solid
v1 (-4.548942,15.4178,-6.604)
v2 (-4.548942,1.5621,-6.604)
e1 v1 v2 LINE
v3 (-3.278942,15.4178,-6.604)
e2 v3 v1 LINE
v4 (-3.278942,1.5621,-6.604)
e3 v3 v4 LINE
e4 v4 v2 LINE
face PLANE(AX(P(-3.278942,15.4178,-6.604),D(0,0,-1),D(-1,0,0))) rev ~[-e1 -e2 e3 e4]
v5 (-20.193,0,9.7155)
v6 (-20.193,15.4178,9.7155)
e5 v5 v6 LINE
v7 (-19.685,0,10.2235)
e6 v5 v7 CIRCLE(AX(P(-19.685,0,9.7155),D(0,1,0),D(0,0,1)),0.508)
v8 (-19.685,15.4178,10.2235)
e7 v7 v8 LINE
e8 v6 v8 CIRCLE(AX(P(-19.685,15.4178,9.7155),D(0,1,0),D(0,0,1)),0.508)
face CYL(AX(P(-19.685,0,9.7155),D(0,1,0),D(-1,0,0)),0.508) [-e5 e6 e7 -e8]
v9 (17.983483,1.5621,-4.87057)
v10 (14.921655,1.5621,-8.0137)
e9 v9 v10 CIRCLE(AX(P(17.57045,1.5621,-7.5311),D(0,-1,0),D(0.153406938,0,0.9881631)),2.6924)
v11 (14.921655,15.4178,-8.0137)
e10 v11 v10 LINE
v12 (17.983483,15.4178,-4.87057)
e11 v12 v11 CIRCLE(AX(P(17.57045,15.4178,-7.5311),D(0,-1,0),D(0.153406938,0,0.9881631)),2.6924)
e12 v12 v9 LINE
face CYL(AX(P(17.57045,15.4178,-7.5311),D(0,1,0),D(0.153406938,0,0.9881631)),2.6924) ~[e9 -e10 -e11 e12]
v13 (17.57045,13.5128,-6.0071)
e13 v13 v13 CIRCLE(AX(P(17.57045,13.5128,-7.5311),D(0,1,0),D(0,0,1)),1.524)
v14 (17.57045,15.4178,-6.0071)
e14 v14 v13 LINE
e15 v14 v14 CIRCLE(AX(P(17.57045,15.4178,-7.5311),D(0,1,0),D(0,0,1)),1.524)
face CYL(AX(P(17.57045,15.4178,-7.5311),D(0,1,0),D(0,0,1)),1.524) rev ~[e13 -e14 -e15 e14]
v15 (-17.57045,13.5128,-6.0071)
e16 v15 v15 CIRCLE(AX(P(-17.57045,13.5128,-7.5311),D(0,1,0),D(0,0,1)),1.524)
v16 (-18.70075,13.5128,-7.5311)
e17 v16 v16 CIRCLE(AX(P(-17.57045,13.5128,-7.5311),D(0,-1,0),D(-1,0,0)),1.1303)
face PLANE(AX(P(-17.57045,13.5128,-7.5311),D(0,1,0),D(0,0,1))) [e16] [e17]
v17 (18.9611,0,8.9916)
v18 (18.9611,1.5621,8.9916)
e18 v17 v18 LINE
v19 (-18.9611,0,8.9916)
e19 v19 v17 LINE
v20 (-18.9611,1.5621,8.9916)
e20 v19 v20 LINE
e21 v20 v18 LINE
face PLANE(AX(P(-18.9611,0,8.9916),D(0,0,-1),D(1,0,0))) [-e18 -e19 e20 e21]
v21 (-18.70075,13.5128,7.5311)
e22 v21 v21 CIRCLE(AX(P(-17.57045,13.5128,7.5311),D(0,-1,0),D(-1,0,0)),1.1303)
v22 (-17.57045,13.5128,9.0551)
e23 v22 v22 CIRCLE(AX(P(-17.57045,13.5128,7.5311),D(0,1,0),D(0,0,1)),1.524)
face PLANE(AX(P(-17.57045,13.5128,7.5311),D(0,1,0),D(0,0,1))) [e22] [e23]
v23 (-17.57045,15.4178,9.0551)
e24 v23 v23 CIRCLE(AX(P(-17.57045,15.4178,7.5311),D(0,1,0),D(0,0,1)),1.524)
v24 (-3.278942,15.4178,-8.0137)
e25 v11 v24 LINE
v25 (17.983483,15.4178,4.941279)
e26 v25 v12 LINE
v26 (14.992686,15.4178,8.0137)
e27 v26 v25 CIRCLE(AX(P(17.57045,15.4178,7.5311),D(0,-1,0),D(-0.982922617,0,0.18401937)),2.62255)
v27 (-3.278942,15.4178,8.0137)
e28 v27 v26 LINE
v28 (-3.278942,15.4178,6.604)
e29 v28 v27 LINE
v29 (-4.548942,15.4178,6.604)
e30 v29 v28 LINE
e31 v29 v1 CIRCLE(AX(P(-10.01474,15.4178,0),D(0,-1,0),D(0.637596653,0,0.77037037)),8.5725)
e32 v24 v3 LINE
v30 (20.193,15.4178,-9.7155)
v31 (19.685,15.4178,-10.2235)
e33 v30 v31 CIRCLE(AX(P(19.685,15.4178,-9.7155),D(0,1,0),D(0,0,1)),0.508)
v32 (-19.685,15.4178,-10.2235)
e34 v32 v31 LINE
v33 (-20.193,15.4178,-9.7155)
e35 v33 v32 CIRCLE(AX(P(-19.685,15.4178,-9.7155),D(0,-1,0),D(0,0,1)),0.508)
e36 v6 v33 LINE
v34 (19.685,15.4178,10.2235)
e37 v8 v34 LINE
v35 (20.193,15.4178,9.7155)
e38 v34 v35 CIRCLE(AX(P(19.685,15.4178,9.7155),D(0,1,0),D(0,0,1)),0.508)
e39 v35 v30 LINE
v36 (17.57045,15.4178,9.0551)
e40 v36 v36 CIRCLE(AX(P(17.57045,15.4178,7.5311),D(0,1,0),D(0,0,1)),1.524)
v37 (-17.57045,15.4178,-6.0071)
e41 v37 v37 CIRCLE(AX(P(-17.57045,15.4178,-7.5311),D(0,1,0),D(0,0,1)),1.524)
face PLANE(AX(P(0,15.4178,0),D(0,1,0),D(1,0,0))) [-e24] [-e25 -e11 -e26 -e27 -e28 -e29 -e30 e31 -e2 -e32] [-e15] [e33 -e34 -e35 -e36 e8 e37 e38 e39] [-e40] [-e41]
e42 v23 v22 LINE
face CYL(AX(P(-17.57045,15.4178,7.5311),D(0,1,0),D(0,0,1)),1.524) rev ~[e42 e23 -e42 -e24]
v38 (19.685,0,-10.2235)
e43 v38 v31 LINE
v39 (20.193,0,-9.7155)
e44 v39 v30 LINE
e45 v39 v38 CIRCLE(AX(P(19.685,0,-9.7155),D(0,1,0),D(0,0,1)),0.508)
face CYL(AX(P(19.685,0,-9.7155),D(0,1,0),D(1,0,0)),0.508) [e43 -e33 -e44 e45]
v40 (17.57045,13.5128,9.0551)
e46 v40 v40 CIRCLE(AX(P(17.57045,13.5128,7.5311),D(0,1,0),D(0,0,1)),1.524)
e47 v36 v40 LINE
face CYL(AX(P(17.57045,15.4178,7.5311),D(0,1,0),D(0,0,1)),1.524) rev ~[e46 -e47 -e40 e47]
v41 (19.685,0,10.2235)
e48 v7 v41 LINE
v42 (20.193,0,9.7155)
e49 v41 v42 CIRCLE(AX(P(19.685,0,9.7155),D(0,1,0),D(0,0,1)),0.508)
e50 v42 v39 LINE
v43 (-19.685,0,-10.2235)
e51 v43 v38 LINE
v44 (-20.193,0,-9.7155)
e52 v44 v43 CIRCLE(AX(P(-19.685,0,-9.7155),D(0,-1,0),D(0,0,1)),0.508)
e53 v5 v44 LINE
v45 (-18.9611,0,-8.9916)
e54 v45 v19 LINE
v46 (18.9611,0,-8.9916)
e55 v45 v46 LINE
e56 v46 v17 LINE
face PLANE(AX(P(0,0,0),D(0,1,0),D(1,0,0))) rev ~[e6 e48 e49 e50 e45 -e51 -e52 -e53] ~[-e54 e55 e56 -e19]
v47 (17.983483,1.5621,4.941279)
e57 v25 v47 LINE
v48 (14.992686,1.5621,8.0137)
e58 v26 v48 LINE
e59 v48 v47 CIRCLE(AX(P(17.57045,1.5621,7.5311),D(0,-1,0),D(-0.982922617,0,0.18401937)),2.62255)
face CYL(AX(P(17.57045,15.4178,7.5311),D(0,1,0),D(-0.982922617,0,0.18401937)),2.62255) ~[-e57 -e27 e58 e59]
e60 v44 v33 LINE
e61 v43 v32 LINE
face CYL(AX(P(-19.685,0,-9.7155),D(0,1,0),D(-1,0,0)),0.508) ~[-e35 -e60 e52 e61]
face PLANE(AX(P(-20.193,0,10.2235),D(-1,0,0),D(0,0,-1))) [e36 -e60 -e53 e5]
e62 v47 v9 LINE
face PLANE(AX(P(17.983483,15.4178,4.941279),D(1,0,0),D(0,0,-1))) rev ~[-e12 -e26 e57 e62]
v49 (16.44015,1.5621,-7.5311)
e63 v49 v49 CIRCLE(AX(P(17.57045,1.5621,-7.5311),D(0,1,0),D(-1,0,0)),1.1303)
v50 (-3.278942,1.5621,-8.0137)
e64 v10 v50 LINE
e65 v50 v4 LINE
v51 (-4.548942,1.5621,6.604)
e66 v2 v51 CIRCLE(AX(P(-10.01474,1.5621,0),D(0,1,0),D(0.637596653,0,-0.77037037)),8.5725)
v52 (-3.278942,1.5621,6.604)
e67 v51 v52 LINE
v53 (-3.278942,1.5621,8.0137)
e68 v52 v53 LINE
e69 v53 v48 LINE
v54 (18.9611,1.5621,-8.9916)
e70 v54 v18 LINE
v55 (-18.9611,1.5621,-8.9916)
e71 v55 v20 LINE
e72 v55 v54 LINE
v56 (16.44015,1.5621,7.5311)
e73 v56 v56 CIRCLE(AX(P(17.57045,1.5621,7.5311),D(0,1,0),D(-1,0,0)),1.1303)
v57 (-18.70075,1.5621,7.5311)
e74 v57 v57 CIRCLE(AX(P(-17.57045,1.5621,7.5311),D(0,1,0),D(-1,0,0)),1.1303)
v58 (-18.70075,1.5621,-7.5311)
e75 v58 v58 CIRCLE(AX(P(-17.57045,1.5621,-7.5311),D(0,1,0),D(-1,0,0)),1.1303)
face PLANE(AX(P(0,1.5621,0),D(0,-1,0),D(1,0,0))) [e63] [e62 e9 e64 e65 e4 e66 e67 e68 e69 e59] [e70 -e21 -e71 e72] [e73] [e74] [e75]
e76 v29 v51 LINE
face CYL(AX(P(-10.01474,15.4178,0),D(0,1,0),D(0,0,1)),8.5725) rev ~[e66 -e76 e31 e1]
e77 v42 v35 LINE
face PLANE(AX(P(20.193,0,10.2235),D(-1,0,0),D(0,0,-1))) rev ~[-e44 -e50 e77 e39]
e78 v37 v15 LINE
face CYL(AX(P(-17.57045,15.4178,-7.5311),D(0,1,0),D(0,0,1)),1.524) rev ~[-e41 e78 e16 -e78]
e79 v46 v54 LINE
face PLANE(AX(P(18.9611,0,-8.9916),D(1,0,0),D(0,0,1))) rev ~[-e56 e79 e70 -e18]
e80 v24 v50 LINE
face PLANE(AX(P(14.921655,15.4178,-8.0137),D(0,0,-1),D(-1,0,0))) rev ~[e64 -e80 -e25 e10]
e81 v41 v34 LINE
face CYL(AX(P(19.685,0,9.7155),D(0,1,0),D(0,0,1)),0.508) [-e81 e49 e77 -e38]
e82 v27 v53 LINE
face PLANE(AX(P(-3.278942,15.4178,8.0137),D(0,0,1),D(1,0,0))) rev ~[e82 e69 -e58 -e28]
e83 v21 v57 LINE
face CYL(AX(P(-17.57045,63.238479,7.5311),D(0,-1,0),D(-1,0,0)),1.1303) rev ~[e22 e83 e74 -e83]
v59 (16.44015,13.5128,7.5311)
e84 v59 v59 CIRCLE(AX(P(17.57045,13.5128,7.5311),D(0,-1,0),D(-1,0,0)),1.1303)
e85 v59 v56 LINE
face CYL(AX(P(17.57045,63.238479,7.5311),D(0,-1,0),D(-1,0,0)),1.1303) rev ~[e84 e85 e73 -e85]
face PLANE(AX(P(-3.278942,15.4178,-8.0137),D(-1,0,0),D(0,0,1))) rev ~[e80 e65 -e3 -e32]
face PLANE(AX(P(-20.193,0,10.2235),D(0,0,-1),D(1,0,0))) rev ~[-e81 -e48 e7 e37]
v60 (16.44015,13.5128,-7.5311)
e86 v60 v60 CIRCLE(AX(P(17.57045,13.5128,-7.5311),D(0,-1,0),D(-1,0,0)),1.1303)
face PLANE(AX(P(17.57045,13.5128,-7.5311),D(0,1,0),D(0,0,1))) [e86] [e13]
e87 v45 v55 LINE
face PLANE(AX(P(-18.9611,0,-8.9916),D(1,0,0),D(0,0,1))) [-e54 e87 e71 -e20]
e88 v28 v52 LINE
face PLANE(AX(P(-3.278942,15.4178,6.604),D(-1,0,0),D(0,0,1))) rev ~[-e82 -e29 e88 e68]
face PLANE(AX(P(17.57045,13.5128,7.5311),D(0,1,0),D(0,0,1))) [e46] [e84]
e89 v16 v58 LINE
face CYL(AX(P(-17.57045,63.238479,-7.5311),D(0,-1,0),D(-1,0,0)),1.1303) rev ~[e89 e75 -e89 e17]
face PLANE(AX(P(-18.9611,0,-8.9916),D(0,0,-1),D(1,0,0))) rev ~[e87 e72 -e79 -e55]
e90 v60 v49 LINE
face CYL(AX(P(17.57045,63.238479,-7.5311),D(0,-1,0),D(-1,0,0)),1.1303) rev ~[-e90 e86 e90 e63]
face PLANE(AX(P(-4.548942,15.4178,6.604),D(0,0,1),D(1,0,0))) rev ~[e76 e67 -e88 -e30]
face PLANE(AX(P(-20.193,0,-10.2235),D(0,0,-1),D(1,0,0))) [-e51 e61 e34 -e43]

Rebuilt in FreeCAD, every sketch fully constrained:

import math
import FreeCAD as App
import Part
import Sketcher

V = App.Vector
Q = App.Units.Quantity


def edges_at(feature, points):
    """Names of the edges that pass closest to the given points."""
    edges = feature.Shape.Edges
    near = lambda p: min(range(len(edges)), key=lambda i: edges[i].distToShape(Part.Vertex(*p))[0])
    return sorted({f"Edge{near(p) + 1}" for p in points})


def add_polygon(sketch, points):
    """Adds a closed chain of lines whose ends are joined by coincident constraints."""
    first, n = sketch.GeometryCount, len(points)
    for a, b in zip(points, points[1:] + points[:1]):
        sketch.addGeometry(Part.LineSegment(App.Vector(*a, 0), App.Vector(*b, 0)), False)
    for i in range(n):
        sketch.addConstraint(Sketcher.Constraint("Coincident", first + i, 2, first + (i + 1) % n, 1))

doc = App.newDocument("Part")
body = doc.addObject("PartDesign::Body", "Body")

# Sketch on XZ plane
sketch1 = body.newObject("Sketcher::SketchObject", "Sketch")
sketch1.AttachmentSupport = (doc.getObject("XZ_Plane"), [""])
sketch1.MapMode = "FlatFace"
add_polygon(sketch1, [(-20, -10), (-20, 10), (20, 10), (20, -10)])  # lines 0-3
sketch1.addConstraint([
    Sketcher.Constraint("Vertical", 0),
    Sketcher.Constraint("Horizontal", 1),
    Sketcher.Constraint("Vertical", 2),
    Sketcher.Constraint("Horizontal", 3),
    Sketcher.Constraint("Symmetric", 0, 2, 2, 2, -1, 1),
    Sketcher.Constraint("DistanceX", 1, 1, 1, 2, Q("1.59 in")),
    Sketcher.Constraint("DistanceY", 0, 1, 0, 2, Q("0.805 in")),
])
pad1 = body.newObject("PartDesign::Pad", "Pad")
pad1.Profile = sketch1
pad1.Length = Q("0.607 in")
pad1.Reversed = True
doc.recompute()

fillet = body.newObject("PartDesign::Fillet", "Fillet")
fillet.Base = (pad1, edges_at(pad1, [
    (20.193, 7.709, 10.223),
    (-20.193, 7.709, 10.223),
    (-20.193, 7.709, -10.223),
    (20.193, 7.709, -10.223),
]))
fillet.Radius = Q("0.02 in")

# Sketch on XZ plane
sketch2 = body.newObject("Sketcher::SketchObject", "Sketch001")
sketch2.AttachmentSupport = (doc.getObject("XZ_Plane"), [""])
sketch2.MapMode = "FlatFace"
sketch2.AttachmentOffset = App.Placement(V(0, 0, -0.607 * 25.4), App.Rotation())
sketch2.addGeometry([
    Part.Circle(V(17.6, 7.5, 0), V(0, 0, 1), 1.1),
    Part.Circle(V(-17.6, -7.5, 0), V(0, 0, 1), 1.1),
    Part.Circle(V(-17.6, 7.5, 0), V(0, 0, 1), 1.1),
    Part.Circle(V(17.6, -7.5, 0), V(0, 0, 1), 1.1),
], False)
sketch2.addConstraint([
    Sketcher.Constraint("Equal", 0, 1),
    Sketcher.Constraint("Equal", 1, 2),
    Sketcher.Constraint("Equal", 2, 3),
    Sketcher.Constraint("Symmetric", 0, 3, 1, 3, -1, 1),
    Sketcher.Constraint("Symmetric", 2, 3, 3, 3, -1, 1),
    Sketcher.Constraint("Symmetric", 0, 3, 2, 3, -2),
    Sketcher.Constraint("Diameter", 0, Q("0.089 in")),
    Sketcher.Constraint("DistanceY", 1, 3, 0, 3, Q("0.593 in")),
    Sketcher.Constraint("DistanceX", 1, 3, 0, 3, Q("1.3835 in")),
])
doc.recompute()
hole = body.newObject("PartDesign::Hole", "Hole")
hole.Profile = sketch2
hole.ThreadType = "None"
hole.Diameter = Q("0.089 in")
hole.DepthType = "ThroughAll"
hole.Reversed = True

# Sketch on XZ plane
sketch3 = body.newObject("Sketcher::SketchObject", "Sketch002")
sketch3.AttachmentSupport = (doc.getObject("XZ_Plane"), [""])
sketch3.MapMode = "FlatFace"
sketch3.AttachmentOffset = App.Placement(V(0, 0, -0.607 * 25.4), App.Rotation())
sketch3.addGeometry([
    Part.Circle(V(-17.6, 7.5, 0), V(0, 0, 1), 1.5),
    Part.Circle(V(-17.6, -7.5, 0), V(0, 0, 1), 1.5),
    Part.Circle(V(17.6, -7.5, 0), V(0, 0, 1), 1.5),
    Part.Circle(V(17.6, 7.5, 0), V(0, 0, 1), 1.5),
], False)
sketch3.addConstraint([
    Sketcher.Constraint("Equal", 0, 1),
    Sketcher.Constraint("Equal", 1, 2),
    Sketcher.Constraint("Equal", 2, 3),
    Sketcher.Constraint("Symmetric", 0, 3, 2, 3, -1, 1),
    Sketcher.Constraint("Symmetric", 1, 3, 3, 3, -1, 1),
    Sketcher.Constraint("Symmetric", 1, 3, 2, 3, -2),
    Sketcher.Constraint("Diameter", 0, Q("0.12 in")),
    Sketcher.Constraint("DistanceY", 1, 3, 0, 3, Q("0.593 in")),
    Sketcher.Constraint("DistanceX", 1, 3, 2, 3, Q("1.3835 in")),
])
pocket1 = body.newObject("PartDesign::Pocket", "Pocket")
pocket1.Profile = sketch3
pocket1.Length = Q("0.075 in")
pocket1.Reversed = True

# Sketch on XZ plane
sketch4 = body.newObject("Sketcher::SketchObject", "Sketch003")
sketch4.AttachmentSupport = (doc.getObject("XZ_Plane"), [""])
sketch4.MapMode = "FlatFace"
sketch4.AttachmentOffset = App.Placement(V(0, 0, -0.607 * 25.4), App.Rotation())
sketch4.addGeometry(Part.Circle(V(-10, 0, 0), V(0, 0, 1), 9), False)
sketch4.addConstraint([
    Sketcher.Constraint("PointOnObject", 0, 3, -1),
    Sketcher.Constraint("Diameter", 0, Q("0.675 in")),
    Sketcher.Constraint("DistanceX", 0, 3, -1, 1, 10.01474),
])
pocket2 = body.newObject("PartDesign::Pocket", "Pocket001")
pocket2.Profile = sketch4
pocket2.Type = "ThroughAll"
pocket2.Reversed = True

# Sketch on XZ plane
sketch5 = body.newObject("Sketcher::SketchObject", "Sketch004")
sketch5.AttachmentSupport = (doc.getObject("XZ_Plane"), [""])
sketch5.MapMode = "FlatFace"
sketch5.AttachmentOffset = App.Placement(V(0, 0, -0.607 * 25.4), App.Rotation())
sketch5.addGeometry([
    Part.LineSegment(V(-4.5, -6.6, 0), V(-4.5, 6.6, 0)),  # 0
    Part.LineSegment(V(-4.5, 6.6, 0), V(-3.3, 6.6, 0)),  # 1
    Part.LineSegment(V(-3.3, 6.6, 0), V(-3.3, 8, 0)),  # 2
    Part.LineSegment(V(-3.3, 8, 0), V(15, 8, 0)),  # 3
    Part.ArcOfCircle(Part.Circle(V(17.6, 7.5, 0), V(0, 0, 1), 2.6), math.radians(169), math.radians(279)),  # 4
    Part.LineSegment(V(18, 4.9, 0), V(18, -4.9, 0)),  # 5
    Part.ArcOfCircle(Part.Circle(V(17.6, -7.5, 0), V(0, 0, 1), 2.7), math.radians(81), math.radians(190)),  # 6
    Part.LineSegment(V(14.9, -8, 0), V(-3.3, -8, 0)),  # 7
    Part.LineSegment(V(-3.3, -8, 0), V(-3.3, -6.6, 0)),  # 8
    Part.LineSegment(V(-3.3, -6.6, 0), V(-4.5, -6.6, 0)),  # 9
], False)
sketch5.addConstraint([
    Sketcher.Constraint("Coincident", 0, 2, 1, 1),
    Sketcher.Constraint("Coincident", 1, 2, 2, 1),
    Sketcher.Constraint("Coincident", 2, 2, 3, 1),
    Sketcher.Constraint("Coincident", 3, 2, 4, 1),
    Sketcher.Constraint("Coincident", 4, 2, 5, 1),
    Sketcher.Constraint("Coincident", 5, 2, 6, 1),
    Sketcher.Constraint("Coincident", 6, 2, 7, 1),
    Sketcher.Constraint("Coincident", 7, 2, 8, 1),
    Sketcher.Constraint("Coincident", 8, 2, 9, 1),
    Sketcher.Constraint("Coincident", 9, 2, 0, 1),
    Sketcher.Constraint("Vertical", 0),
    Sketcher.Constraint("Horizontal", 1),
    Sketcher.Constraint("Vertical", 2),
    Sketcher.Constraint("Horizontal", 3),
    Sketcher.Constraint("Vertical", 5),
    Sketcher.Constraint("Horizontal", 7),
    Sketcher.Constraint("Vertical", 8),
    Sketcher.Constraint("Horizontal", 9),
    Sketcher.Constraint("Symmetric", 4, 3, 6, 3, -1),
    Sketcher.Constraint("Symmetric", 2, 2, 7, 2, -1),
    Sketcher.Constraint("Equal", 2, 8),
    Sketcher.Constraint("Radius", 6, Q("0.106 in")),
    Sketcher.Constraint("DistanceX", 1, 1, 1, 2, Q("0.05 in")),
    Sketcher.Constraint("DistanceY", 0, 1, 0, 2, Q("0.52 in")),
    Sketcher.Constraint("DistanceY", 2, 1, 2, 2, Q("0.0555 in")),
    Sketcher.Constraint("Radius", 4, 2.62255),
    Sketcher.Constraint("DistanceY", 6, 3, 4, 3, Q("0.593 in")),
    Sketcher.Constraint("DistanceX", 3, 1, 3, 2, 18.271629),
    Sketcher.Constraint("DistanceY", 5, 2, 5, 1, 9.811849),
    Sketcher.Constraint("DistanceX", -1, 1, 4, 3, 17.57045),
])
pocket3 = body.newObject("PartDesign::Pocket", "Pocket002")
pocket3.Profile = sketch5
pocket3.Type = "ThroughAll"
pocket3.Reversed = True

# Sketch on XZ plane
sketch6 = body.newObject("Sketcher::SketchObject", "Sketch005")
sketch6.AttachmentSupport = (doc.getObject("XZ_Plane"), [""])
sketch6.MapMode = "FlatFace"
add_polygon(sketch6, [(-19, 9), (-19, -9), (19, -9), (19, 9)])  # lines 0-3
sketch6.addGeometry(Part.Circle(V(-17.6, -7.5, 0), V(0, 0, 1), 1.1), False)  # 4
sketch6.addGeometry(Part.Circle(V(17.6, -7.5, 0), V(0, 0, 1), 1.1), False)  # 5
sketch6.addGeometry(Part.ArcOfCircle(Part.Circle(V(17.6, -7.5, 0), V(0, 0, 1), 2.7), math.radians(81), math.radians(190)), False)  # 6
sketch6.addGeometry(Part.LineSegment(V(14.9, -8, 0), V(-3.3, -8, 0)), False)  # 7
sketch6.addGeometry(Part.LineSegment(V(-3.3, -8, 0), V(-3.3, -6.6, 0)), False)  # 8
sketch6.addGeometry(Part.LineSegment(V(-3.3, -6.6, 0), V(-4.5, -6.6, 0)), False)  # 9
sketch6.addGeometry(Part.ArcOfCircle(Part.Circle(V(-10, 0, 0), V(0, 0, 1), 8.6), math.radians(50), math.radians(310)), False)  # 10
sketch6.addGeometry(Part.LineSegment(V(-4.5, 6.6, 0), V(-3.3, 6.6, 0)), False)  # 11
sketch6.addGeometry(Part.LineSegment(V(-3.3, 6.6, 0), V(-3.3, 8, 0)), False)  # 12
sketch6.addGeometry(Part.LineSegment(V(-3.3, 8, 0), V(15, 8, 0)), False)  # 13
sketch6.addGeometry(Part.ArcOfCircle(Part.Circle(V(17.6, 7.5, 0), V(0, 0, 1), 2.6), math.radians(169), math.radians(279)), False)  # 14
sketch6.addGeometry(Part.LineSegment(V(18, 4.9, 0), V(18, -4.9, 0)), False)  # 15
sketch6.addGeometry(Part.Circle(V(-17.6, 7.5, 0), V(0, 0, 1), 1.1), False)  # 16
sketch6.addGeometry(Part.Circle(V(17.6, 7.5, 0), V(0, 0, 1), 1.1), False)  # 17
sketch6.addConstraint([
    Sketcher.Constraint("Coincident", 6, 2, 7, 1),
    Sketcher.Constraint("Coincident", 7, 2, 8, 1),
    Sketcher.Constraint("Coincident", 8, 2, 9, 1),
    Sketcher.Constraint("Coincident", 9, 2, 10, 2),
    Sketcher.Constraint("Coincident", 10, 1, 11, 1),
    Sketcher.Constraint("Coincident", 11, 2, 12, 1),
    Sketcher.Constraint("Coincident", 12, 2, 13, 1),
    Sketcher.Constraint("Coincident", 13, 2, 14, 1),
    Sketcher.Constraint("Coincident", 14, 2, 15, 1),
    Sketcher.Constraint("Coincident", 15, 2, 6, 1),
    Sketcher.Constraint("Vertical", 0),
    Sketcher.Constraint("Horizontal", 1),
    Sketcher.Constraint("Vertical", 2),
    Sketcher.Constraint("Horizontal", 3),
    Sketcher.Constraint("Horizontal", 7),
    Sketcher.Constraint("Vertical", 8),
    Sketcher.Constraint("Horizontal", 9),
    Sketcher.Constraint("Horizontal", 11),
    Sketcher.Constraint("Vertical", 12),
    Sketcher.Constraint("Horizontal", 13),
    Sketcher.Constraint("Vertical", 15),
    Sketcher.Constraint("Coincident", 6, 3, 5, 3),
    Sketcher.Constraint("Coincident", 17, 3, 14, 3),
    Sketcher.Constraint("Equal", 4, 5),
    Sketcher.Constraint("Equal", 5, 16),
    Sketcher.Constraint("Equal", 16, 17),
    Sketcher.Constraint("Symmetric", 4, 3, 14, 3, -1, 1),
    Sketcher.Constraint("Symmetric", 5, 3, 16, 3, -1, 1),
    Sketcher.Constraint("Symmetric", 0, 2, 2, 2, -1, 1),
    Sketcher.Constraint("Symmetric", 4, 3, 5, 3, -2),
    Sketcher.Constraint("Symmetric", 9, 2, 10, 1, -1),
    Sketcher.Constraint("Symmetric", 7, 2, 12, 2, -1),
    Sketcher.Constraint("Diameter", 4, Q("0.089 in")),
    Sketcher.Constraint("Radius", 6, Q("0.106 in")),
    Sketcher.Constraint("DistanceX", 9, 2, 9, 1, Q("0.05 in")),
    Sketcher.Constraint("Radius", 10, Q("0.3375 in")),
    Sketcher.Constraint("DistanceX", 1, 1, 1, 2, Q("1.493 in")),
    Sketcher.Constraint("DistanceY", 0, 2, 0, 1, Q("0.708 in")),
    Sketcher.Constraint("DistanceY", 8, 2, -1, 1, Q("0.26 in")),
    Sketcher.Constraint("DistanceY", 8, 1, 8, 2, Q("0.0555 in")),
    Sketcher.Constraint("Radius", 14, 2.62255),
    Sketcher.Constraint("DistanceY", 5, 3, 14, 3, Q("0.593 in")),
    Sketcher.Constraint("DistanceX", 4, 3, 5, 3, Q("1.3835 in")),
    Sketcher.Constraint("DistanceX", 13, 1, 13, 2, 18.271629),
    Sketcher.Constraint("DistanceY", 15, 2, 15, 1, 9.811849),
])
pocket4 = body.newObject("PartDesign::Pocket", "Pocket003")
pocket4.Profile = sketch6
pocket4.Length = Q("0.0615 in")

doc.recompute()
